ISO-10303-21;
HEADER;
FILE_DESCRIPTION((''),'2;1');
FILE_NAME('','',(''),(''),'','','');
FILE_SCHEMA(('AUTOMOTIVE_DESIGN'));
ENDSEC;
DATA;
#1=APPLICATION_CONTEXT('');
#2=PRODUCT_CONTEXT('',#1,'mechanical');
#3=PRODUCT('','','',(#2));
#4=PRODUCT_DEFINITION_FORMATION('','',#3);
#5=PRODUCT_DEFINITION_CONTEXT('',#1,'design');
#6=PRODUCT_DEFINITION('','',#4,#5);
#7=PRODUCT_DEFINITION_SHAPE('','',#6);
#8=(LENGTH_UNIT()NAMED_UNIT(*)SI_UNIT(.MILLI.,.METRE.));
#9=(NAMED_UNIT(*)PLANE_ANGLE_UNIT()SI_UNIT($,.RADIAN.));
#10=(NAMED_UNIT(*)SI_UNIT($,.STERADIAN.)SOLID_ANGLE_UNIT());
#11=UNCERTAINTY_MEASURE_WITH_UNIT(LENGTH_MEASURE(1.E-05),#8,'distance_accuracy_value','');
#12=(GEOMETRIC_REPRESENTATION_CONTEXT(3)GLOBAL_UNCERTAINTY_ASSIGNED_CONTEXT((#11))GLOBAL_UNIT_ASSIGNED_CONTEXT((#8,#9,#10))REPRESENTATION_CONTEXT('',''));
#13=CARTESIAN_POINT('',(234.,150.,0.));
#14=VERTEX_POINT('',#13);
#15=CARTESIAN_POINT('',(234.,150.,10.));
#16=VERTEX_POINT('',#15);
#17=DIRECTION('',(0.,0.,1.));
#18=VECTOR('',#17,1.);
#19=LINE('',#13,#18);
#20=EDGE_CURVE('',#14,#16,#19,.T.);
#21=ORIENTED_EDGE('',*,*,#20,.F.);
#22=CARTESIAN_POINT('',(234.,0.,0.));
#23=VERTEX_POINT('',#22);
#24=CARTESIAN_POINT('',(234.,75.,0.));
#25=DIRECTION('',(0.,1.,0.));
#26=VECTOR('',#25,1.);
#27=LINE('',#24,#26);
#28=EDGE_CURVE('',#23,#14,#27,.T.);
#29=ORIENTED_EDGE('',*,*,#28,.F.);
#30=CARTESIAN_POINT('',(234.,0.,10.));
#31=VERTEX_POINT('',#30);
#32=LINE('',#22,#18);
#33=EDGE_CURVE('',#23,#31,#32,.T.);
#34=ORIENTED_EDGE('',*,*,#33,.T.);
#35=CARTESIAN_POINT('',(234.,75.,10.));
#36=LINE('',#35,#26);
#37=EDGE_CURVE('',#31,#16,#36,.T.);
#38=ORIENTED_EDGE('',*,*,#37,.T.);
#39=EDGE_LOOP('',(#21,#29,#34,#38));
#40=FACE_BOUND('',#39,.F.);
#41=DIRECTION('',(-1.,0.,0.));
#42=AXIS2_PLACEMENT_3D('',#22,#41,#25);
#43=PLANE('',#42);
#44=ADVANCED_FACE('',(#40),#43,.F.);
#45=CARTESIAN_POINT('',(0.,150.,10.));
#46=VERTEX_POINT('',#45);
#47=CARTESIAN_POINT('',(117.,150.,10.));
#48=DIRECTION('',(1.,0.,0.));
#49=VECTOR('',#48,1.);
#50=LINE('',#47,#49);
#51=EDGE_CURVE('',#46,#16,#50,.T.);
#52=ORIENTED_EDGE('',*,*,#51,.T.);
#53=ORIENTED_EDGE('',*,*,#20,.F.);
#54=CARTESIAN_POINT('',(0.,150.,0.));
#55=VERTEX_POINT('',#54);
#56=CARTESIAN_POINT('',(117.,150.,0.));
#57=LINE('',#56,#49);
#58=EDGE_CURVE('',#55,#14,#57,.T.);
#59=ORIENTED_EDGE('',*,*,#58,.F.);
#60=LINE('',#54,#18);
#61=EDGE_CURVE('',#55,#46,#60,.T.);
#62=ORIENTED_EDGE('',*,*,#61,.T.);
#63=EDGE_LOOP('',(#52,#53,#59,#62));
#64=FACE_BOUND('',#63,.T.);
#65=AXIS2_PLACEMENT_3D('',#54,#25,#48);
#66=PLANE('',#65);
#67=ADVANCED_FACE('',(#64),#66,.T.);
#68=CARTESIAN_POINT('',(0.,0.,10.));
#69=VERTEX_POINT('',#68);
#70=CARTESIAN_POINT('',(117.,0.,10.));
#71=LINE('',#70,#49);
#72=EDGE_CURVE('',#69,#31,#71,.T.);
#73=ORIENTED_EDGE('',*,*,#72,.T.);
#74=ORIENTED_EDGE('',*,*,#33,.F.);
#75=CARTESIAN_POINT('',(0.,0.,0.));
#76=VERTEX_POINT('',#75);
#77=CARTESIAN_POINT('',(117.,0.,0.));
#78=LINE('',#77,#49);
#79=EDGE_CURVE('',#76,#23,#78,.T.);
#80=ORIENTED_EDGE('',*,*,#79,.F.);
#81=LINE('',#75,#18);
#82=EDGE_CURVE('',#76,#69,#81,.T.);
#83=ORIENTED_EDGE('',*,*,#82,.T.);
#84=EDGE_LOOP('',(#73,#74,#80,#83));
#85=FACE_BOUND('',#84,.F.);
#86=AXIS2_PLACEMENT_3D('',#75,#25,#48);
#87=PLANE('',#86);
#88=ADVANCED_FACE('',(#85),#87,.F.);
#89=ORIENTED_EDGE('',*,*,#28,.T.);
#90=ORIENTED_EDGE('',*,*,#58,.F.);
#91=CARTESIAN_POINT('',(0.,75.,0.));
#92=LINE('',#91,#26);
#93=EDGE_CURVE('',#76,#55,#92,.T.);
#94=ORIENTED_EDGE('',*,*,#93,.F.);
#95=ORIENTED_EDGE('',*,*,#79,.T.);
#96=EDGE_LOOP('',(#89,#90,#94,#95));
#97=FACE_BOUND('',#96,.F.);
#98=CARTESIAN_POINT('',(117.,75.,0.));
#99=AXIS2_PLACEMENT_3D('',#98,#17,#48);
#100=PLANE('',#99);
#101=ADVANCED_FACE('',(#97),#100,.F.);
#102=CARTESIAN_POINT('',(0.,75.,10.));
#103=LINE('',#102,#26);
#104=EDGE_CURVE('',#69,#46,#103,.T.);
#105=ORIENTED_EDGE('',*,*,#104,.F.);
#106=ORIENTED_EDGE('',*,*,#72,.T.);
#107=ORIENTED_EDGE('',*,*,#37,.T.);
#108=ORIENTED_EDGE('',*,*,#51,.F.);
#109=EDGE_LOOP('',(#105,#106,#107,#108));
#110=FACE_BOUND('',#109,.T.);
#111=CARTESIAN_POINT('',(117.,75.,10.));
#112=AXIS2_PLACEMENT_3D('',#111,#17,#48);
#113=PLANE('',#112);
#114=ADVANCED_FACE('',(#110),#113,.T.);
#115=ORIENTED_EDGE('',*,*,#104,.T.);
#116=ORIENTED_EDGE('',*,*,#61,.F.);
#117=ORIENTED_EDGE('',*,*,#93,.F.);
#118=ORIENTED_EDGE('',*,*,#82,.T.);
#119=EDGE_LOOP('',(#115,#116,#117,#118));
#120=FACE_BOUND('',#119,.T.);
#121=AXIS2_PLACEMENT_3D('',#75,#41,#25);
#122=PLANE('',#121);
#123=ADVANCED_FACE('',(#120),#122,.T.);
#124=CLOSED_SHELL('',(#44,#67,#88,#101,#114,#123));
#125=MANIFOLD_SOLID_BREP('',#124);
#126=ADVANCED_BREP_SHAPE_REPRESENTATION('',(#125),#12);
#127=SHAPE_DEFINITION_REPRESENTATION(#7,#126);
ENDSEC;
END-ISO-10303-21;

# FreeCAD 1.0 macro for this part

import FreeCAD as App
import Part
import Sketcher
from FreeCAD import Vector
Q = App.Units.Quantity


def add_polygon(sketch, points):
    """Adds a closed chain of lines whose ends are joined by coincident constraints."""
    first, n = sketch.GeometryCount, len(points)
    for a, b in zip(points, points[1:] + points[:1]):
        sketch.addGeometry(Part.LineSegment(App.Vector(*a, 0), App.Vector(*b, 0)), False)
    for i in range(n):
        sketch.addConstraint(Sketcher.Constraint("Coincident", first + i, 2, first + (i + 1) % n, 1))

doc = App.newDocument("Part")
body = doc.addObject("PartDesign::Body", "Body")

# Sketch on XY plane
sketch1 = body.newObject("Sketcher::SketchObject", "Sketch")
sketch1.AttachmentSupport = (doc.getObject("XY_Plane"), [""])
sketch1.MapMode = "FlatFace"
add_polygon(sketch1, [(0, 150), (0, 0), (234, 0), (234, 150)])  # lines 0-3
sketch1.addConstraint([
    Sketcher.Constraint("Vertical", 0),
    Sketcher.Constraint("Horizontal", 1),
    Sketcher.Constraint("Vertical", 2),
    Sketcher.Constraint("Horizontal", 3),
    Sketcher.Constraint("Coincident", 0, 2, -1, 1),
    Sketcher.Constraint("DistanceX", 1, 1, 1, 2, Q("234 mm")),
    Sketcher.Constraint("DistanceY", 0, 2, 0, 1, Q("150 mm")),
])
pad1 = body.newObject("PartDesign::Pad", "Pad")
pad1.Profile = sketch1
pad1.Length = 10

doc.recompute()
